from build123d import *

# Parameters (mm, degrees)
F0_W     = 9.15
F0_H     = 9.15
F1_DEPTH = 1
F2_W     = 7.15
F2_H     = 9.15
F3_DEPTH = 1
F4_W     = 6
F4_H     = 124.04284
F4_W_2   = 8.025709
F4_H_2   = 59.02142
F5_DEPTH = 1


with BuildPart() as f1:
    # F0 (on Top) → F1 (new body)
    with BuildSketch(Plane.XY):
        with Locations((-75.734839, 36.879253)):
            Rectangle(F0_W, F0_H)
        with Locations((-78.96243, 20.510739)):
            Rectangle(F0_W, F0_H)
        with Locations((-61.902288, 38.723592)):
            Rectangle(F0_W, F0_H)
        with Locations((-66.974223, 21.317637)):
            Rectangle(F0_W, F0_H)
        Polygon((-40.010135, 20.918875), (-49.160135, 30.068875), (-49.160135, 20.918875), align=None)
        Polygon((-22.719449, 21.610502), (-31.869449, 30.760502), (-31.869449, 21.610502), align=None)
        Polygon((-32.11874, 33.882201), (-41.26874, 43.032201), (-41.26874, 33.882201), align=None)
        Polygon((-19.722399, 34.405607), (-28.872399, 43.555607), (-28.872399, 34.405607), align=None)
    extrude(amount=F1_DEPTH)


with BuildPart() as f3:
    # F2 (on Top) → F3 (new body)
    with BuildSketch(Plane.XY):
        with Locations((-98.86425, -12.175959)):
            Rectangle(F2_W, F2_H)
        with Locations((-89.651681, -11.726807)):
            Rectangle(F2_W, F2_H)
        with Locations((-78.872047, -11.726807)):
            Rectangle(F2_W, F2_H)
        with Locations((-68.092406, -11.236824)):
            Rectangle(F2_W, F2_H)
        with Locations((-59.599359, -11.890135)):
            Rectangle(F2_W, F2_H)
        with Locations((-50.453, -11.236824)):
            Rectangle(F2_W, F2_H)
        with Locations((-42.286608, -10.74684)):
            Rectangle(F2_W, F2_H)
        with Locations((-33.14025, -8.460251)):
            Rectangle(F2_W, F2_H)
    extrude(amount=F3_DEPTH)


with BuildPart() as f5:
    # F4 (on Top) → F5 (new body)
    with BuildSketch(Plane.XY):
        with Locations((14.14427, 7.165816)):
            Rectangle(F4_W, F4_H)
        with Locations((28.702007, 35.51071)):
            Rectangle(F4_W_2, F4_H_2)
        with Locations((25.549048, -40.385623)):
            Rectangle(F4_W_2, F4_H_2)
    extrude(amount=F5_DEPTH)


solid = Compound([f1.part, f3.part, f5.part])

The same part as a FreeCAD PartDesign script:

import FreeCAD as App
import Part
import Sketcher
from FreeCAD import Vector

doc = App.newDocument("Part")
body = doc.addObject("PartDesign::Body", "Body")
body.AllowCompound = True

sketch1 = doc.addObject("Sketcher::SketchObject", "Sketch")
body.addObject(sketch1)
sketch1.AttachmentSupport = (doc.XY_Plane, [""])
sketch1.MapMode = "FlatFace"
sketch1.addGeometry(Part.LineSegment(Vector(-80, 41, 0), Vector(-80, 32, 0)), False)
sketch1.addGeometry(Part.LineSegment(Vector(-80, 32, 0), Vector(-71, 32, 0)), False)
sketch1.addGeometry(Part.LineSegment(Vector(-71, 32, 0), Vector(-71, 41, 0)), False)
sketch1.addGeometry(Part.LineSegment(Vector(-71, 41, 0), Vector(-80, 41, 0)), False)
sketch1.addGeometry(Part.LineSegment(Vector(-84, 25, 0), Vector(-84, 16, 0)), False)
sketch1.addGeometry(Part.LineSegment(Vector(-84, 16, 0), Vector(-74, 16, 0)), False)
sketch1.addGeometry(Part.LineSegment(Vector(-74, 16, 0), Vector(-74, 25, 0)), False)
sketch1.addGeometry(Part.LineSegment(Vector(-74, 25, 0), Vector(-84, 25, 0)), False)
sketch1.addGeometry(Part.LineSegment(Vector(-66, 43, 0), Vector(-66, 34, 0)), False)
sketch1.addGeometry(Part.LineSegment(Vector(-66, 34, 0), Vector(-57, 34, 0)), False)
sketch1.addGeometry(Part.LineSegment(Vector(-57, 34, 0), Vector(-57, 43, 0)), False)
sketch1.addGeometry(Part.LineSegment(Vector(-57, 43, 0), Vector(-66, 43, 0)), False)
sketch1.addGeometry(Part.LineSegment(Vector(-72, 26, 0), Vector(-72, 17, 0)), False)
sketch1.addGeometry(Part.LineSegment(Vector(-72, 17, 0), Vector(-62, 17, 0)), False)
sketch1.addGeometry(Part.LineSegment(Vector(-62, 17, 0), Vector(-62, 26, 0)), False)
sketch1.addGeometry(Part.LineSegment(Vector(-62, 26, 0), Vector(-72, 26, 0)), False)
sketch1.addGeometry(Part.LineSegment(Vector(-40, 21, 0), Vector(-49, 30, 0)), False)
sketch1.addGeometry(Part.LineSegment(Vector(-49, 30, 0), Vector(-49, 21, 0)), False)
sketch1.addGeometry(Part.LineSegment(Vector(-49, 21, 0), Vector(-40, 21, 0)), False)
sketch1.addGeometry(Part.LineSegment(Vector(-23, 22, 0), Vector(-32, 31, 0)), False)
sketch1.addGeometry(Part.LineSegment(Vector(-32, 31, 0), Vector(-32, 22, 0)), False)
sketch1.addGeometry(Part.LineSegment(Vector(-32, 22, 0), Vector(-23, 22, 0)), False)
sketch1.addGeometry(Part.LineSegment(Vector(-32, 34, 0), Vector(-41, 43, 0)), False)
sketch1.addGeometry(Part.LineSegment(Vector(-41, 43, 0), Vector(-41, 34, 0)), False)
sketch1.addGeometry(Part.LineSegment(Vector(-41, 34, 0), Vector(-32, 34, 0)), False)
sketch1.addGeometry(Part.LineSegment(Vector(-20, 34, 0), Vector(-29, 44, 0)), False)
sketch1.addGeometry(Part.LineSegment(Vector(-29, 44, 0), Vector(-29, 34, 0)), False)
sketch1.addGeometry(Part.LineSegment(Vector(-29, 34, 0), Vector(-20, 34, 0)), False)
sketch1.addConstraint(Sketcher.Constraint("Coincident", 0, 2, 1, 1))
sketch1.addConstraint(Sketcher.Constraint("Coincident", 1, 2, 2, 1))
sketch1.addConstraint(Sketcher.Constraint("Coincident", 2, 2, 3, 1))
sketch1.addConstraint(Sketcher.Constraint("Coincident", 3, 2, 0, 1))
sketch1.addConstraint(Sketcher.Constraint("Coincident", 4, 2, 5, 1))
sketch1.addConstraint(Sketcher.Constraint("Coincident", 5, 2, 6, 1))
sketch1.addConstraint(Sketcher.Constraint("Coincident", 6, 2, 7, 1))
sketch1.addConstraint(Sketcher.Constraint("Coincident", 7, 2, 4, 1))
sketch1.addConstraint(Sketcher.Constraint("Coincident", 8, 2, 9, 1))
sketch1.addConstraint(Sketcher.Constraint("Coincident", 9, 2, 10, 1))
sketch1.addConstraint(Sketcher.Constraint("Coincident", 10, 2, 11, 1))
sketch1.addConstraint(Sketcher.Constraint("Coincident", 11, 2, 8, 1))
sketch1.addConstraint(Sketcher.Constraint("Coincident", 12, 2, 13, 1))
sketch1.addConstraint(Sketcher.Constraint("Coincident", 13, 2, 14, 1))
sketch1.addConstraint(Sketcher.Constraint("Coincident", 14, 2, 15, 1))
sketch1.addConstraint(Sketcher.Constraint("Coincident", 15, 2, 12, 1))
sketch1.addConstraint(Sketcher.Constraint("Coincident", 16, 2, 17, 1))
sketch1.addConstraint(Sketcher.Constraint("Coincident", 17, 2, 18, 1))
sketch1.addConstraint(Sketcher.Constraint("Coincident", 18, 2, 16, 1))
sketch1.addConstraint(Sketcher.Constraint("Coincident", 19, 2, 20, 1))
sketch1.addConstraint(Sketcher.Constraint("Coincident", 20, 2, 21, 1))
sketch1.addConstraint(Sketcher.Constraint("Coincident", 21, 2, 19, 1))
sketch1.addConstraint(Sketcher.Constraint("Coincident", 22, 2, 23, 1))
sketch1.addConstraint(Sketcher.Constraint("Coincident", 23, 2, 24, 1))
sketch1.addConstraint(Sketcher.Constraint("Coincident", 24, 2, 22, 1))
sketch1.addConstraint(Sketcher.Constraint("Coincident", 25, 2, 26, 1))
sketch1.addConstraint(Sketcher.Constraint("Coincident", 26, 2, 27, 1))
sketch1.addConstraint(Sketcher.Constraint("Coincident", 27, 2, 25, 1))
sketch1.addConstraint(Sketcher.Constraint("Vertical", 0))
sketch1.addConstraint(Sketcher.Constraint("Horizontal", 1))
sketch1.addConstraint(Sketcher.Constraint("Vertical", 2))
sketch1.addConstraint(Sketcher.Constraint("Horizontal", 3))
sketch1.addConstraint(Sketcher.Constraint("Vertical", 4))
sketch1.addConstraint(Sketcher.Constraint("Horizontal", 5))
sketch1.addConstraint(Sketcher.Constraint("Vertical", 6))
sketch1.addConstraint(Sketcher.Constraint("Horizontal", 7))
sketch1.addConstraint(Sketcher.Constraint("Vertical", 8))
sketch1.addConstraint(Sketcher.Constraint("Horizontal", 9))
sketch1.addConstraint(Sketcher.Constraint("Vertical", 10))
sketch1.addConstraint(Sketcher.Constraint("Horizontal", 11))
sketch1.addConstraint(Sketcher.Constraint("Vertical", 12))
sketch1.addConstraint(Sketcher.Constraint("Horizontal", 13))
sketch1.addConstraint(Sketcher.Constraint("Vertical", 14))
sketch1.addConstraint(Sketcher.Constraint("Horizontal", 15))
sketch1.addConstraint(Sketcher.Constraint("Vertical", 17))
sketch1.addConstraint(Sketcher.Constraint("Horizontal", 18))
sketch1.addConstraint(Sketcher.Constraint("Vertical", 20))
sketch1.addConstraint(Sketcher.Constraint("Horizontal", 21))
sketch1.addConstraint(Sketcher.Constraint("Vertical", 23))
sketch1.addConstraint(Sketcher.Constraint("Horizontal", 24))
sketch1.addConstraint(Sketcher.Constraint("Vertical", 26))
sketch1.addConstraint(Sketcher.Constraint("Horizontal", 27))
sketch1.addConstraint(Sketcher.Constraint("Parallel", 16, 19))
sketch1.addConstraint(Sketcher.Constraint("Parallel", 19, 22))
sketch1.addConstraint(Sketcher.Constraint("Parallel", 22, 25))
sketch1.addConstraint(Sketcher.Constraint("Equal", 3, 5))
sketch1.addConstraint(Sketcher.Constraint("Equal", 7, 9))
sketch1.addConstraint(Sketcher.Constraint("Equal", 11, 13))
sketch1.addConstraint(Sketcher.Constraint("Equal", 15, 18))
sketch1.addConstraint(Sketcher.Constraint("Equal", 18, 21))
sketch1.addConstraint(Sketcher.Constraint("Equal", 21, 24))
sketch1.addConstraint(Sketcher.Constraint("Equal", 24, 27))
sketch1.addConstraint(Sketcher.Constraint("Equal", 27, 0))
sketch1.addConstraint(Sketcher.Constraint("Equal", 2, 4))
sketch1.addConstraint(Sketcher.Constraint("Equal", 6, 8))
sketch1.addConstraint(Sketcher.Constraint("Equal", 10, 12))
sketch1.addConstraint(Sketcher.Constraint("Equal", 14, 17))
sketch1.addConstraint(Sketcher.Constraint("DistanceX", 1, 1, 1, 2, 9.15))
sketch1.addConstraint(Sketcher.Constraint("DistanceY", -1, 1, 19, 2, 30.760502))
sketch1.addConstraint(Sketcher.Constraint("DistanceY", -1, 1, 22, 2, 43.032201))
sketch1.addConstraint(Sketcher.Constraint("DistanceX", 25, 2, -1, 1, 28.872399))
sketch1.addConstraint(Sketcher.Constraint("DistanceY", 6, 2, 14, 2, 0.806898))
sketch1.addConstraint(Sketcher.Constraint("DistanceX", 0, 2, -1, 1, 80.309839))
sketch1.addConstraint(Sketcher.Constraint("DistanceX", 4, 2, -1, 1, 83.53743))
sketch1.addConstraint(Sketcher.Constraint("DistanceY", -1, 1, 4, 2, 15.935739))
sketch1.addConstraint(Sketcher.Constraint("DistanceX", 8, 2, -1, 1, 66.477288))
sketch1.addConstraint(Sketcher.Constraint("DistanceX", 19, 2, -1, 1, 31.869449))
sketch1.addConstraint(Sketcher.Constraint("DistanceX", 22, 2, -1, 1, 41.26874))
sketch1.addConstraint(Sketcher.Constraint("DistanceY", 1, 2, 8, 2, 1.844339))
sketch1.addConstraint(Sketcher.Constraint("DistanceX", 14, 2, 16, 2, 13.239088))
sketch1.addConstraint(Sketcher.Constraint("DistanceY", 13, 2, 17, 2, 4.176238))
sketch1.addConstraint(Sketcher.Constraint("DistanceY", 19, 2, 9, 2, 3.38809))
sketch1.addConstraint(Sketcher.Constraint("DistanceX", 12, 2, -1, 1, 71.549223))
sketch1.addConstraint(Sketcher.Constraint("DistanceY", -1, 1, 25, 2, 43.555607))
pad1 = doc.addObject("PartDesign::Pad", "Pad")
body.addObject(pad1)
pad1.Profile = sketch1
pad1.Length = 1
body2 = doc.addObject("PartDesign::Body", "Body001")
body2.AllowCompound = True

sketch2 = doc.addObject("Sketcher::SketchObject", "Sketch001")
body2.addObject(sketch2)
sketch2.AttachmentSupport = (doc.getObject("XY_Plane001"), [""])
sketch2.MapMode = "FlatFace"
sketch2.addGeometry(Part.LineSegment(Vector(-102, -8, 0), Vector(-102, -17, 0)), False)
sketch2.addGeometry(Part.LineSegment(Vector(-102, -17, 0), Vector(-95, -17, 0)), False)
sketch2.addGeometry(Part.LineSegment(Vector(-95, -17, 0), Vector(-95, -8, 0)), False)
sketch2.addGeometry(Part.LineSegment(Vector(-95, -8, 0), Vector(-102, -8, 0)), False)
sketch2.addGeometry(Part.LineSegment(Vector(-93, -7, 0), Vector(-93, -16, 0)), False)
sketch2.addGeometry(Part.LineSegment(Vector(-93, -16, 0), Vector(-86, -16, 0)), False)
sketch2.addGeometry(Part.LineSegment(Vector(-86, -16, 0), Vector(-86, -7, 0)), False)
sketch2.addGeometry(Part.LineSegment(Vector(-86, -7, 0), Vector(-93, -7, 0)), False)
sketch2.addGeometry(Part.LineSegment(Vector(-82, -7, 0), Vector(-82, -16, 0)), False)
sketch2.addGeometry(Part.LineSegment(Vector(-82, -16, 0), Vector(-75, -16, 0)), False)
sketch2.addGeometry(Part.LineSegment(Vector(-75, -16, 0), Vector(-75, -7, 0)), False)
sketch2.addGeometry(Part.LineSegment(Vector(-75, -7, 0), Vector(-82, -7, 0)), False)
sketch2.addGeometry(Part.LineSegment(Vector(-72, -7, 0), Vector(-72, -16, 0)), False)
sketch2.addGeometry(Part.LineSegment(Vector(-72, -16, 0), Vector(-65, -16, 0)), False)
sketch2.addGeometry(Part.LineSegment(Vector(-65, -16, 0), Vector(-65, -7, 0)), False)
sketch2.addGeometry(Part.LineSegment(Vector(-65, -7, 0), Vector(-72, -7, 0)), False)
sketch2.addGeometry(Part.LineSegment(Vector(-63, -7, 0), Vector(-63, -16, 0)), False)
sketch2.addGeometry(Part.LineSegment(Vector(-63, -16, 0), Vector(-56, -16, 0)), False)
sketch2.addGeometry(Part.LineSegment(Vector(-56, -16, 0), Vector(-56, -7, 0)), False)
sketch2.addGeometry(Part.LineSegment(Vector(-56, -7, 0), Vector(-63, -7, 0)), False)
sketch2.addGeometry(Part.LineSegment(Vector(-54, -7, 0), Vector(-54, -16, 0)), False)
sketch2.addGeometry(Part.LineSegment(Vector(-54, -16, 0), Vector(-47, -16, 0)), False)
sketch2.addGeometry(Part.LineSegment(Vector(-47, -16, 0), Vector(-47, -7, 0)), False)
sketch2.addGeometry(Part.LineSegment(Vector(-47, -7, 0), Vector(-54, -7, 0)), False)
sketch2.addGeometry(Part.LineSegment(Vector(-46, -6, 0), Vector(-46, -15, 0)), False)
sketch2.addGeometry(Part.LineSegment(Vector(-46, -15, 0), Vector(-39, -15, 0)), False)
sketch2.addGeometry(Part.LineSegment(Vector(-39, -15, 0), Vector(-39, -6, 0)), False)
sketch2.addGeometry(Part.LineSegment(Vector(-39, -6, 0), Vector(-46, -6, 0)), False)
sketch2.addGeometry(Part.LineSegment(Vector(-37, -4, 0), Vector(-37, -13, 0)), False)
sketch2.addGeometry(Part.LineSegment(Vector(-37, -13, 0), Vector(-30, -13, 0)), False)
sketch2.addGeometry(Part.LineSegment(Vector(-30, -13, 0), Vector(-30, -4, 0)), False)
sketch2.addGeometry(Part.LineSegment(Vector(-30, -4, 0), Vector(-37, -4, 0)), False)
sketch2.addConstraint(Sketcher.Constraint("Coincident", 0, 2, 1, 1))
sketch2.addConstraint(Sketcher.Constraint("Coincident", 1, 2, 2, 1))
sketch2.addConstraint(Sketcher.Constraint("Coincident", 2, 2, 3, 1))
sketch2.addConstraint(Sketcher.Constraint("Coincident", 3, 2, 0, 1))
sketch2.addConstraint(Sketcher.Constraint("Coincident", 4, 2, 5, 1))
sketch2.addConstraint(Sketcher.Constraint("Coincident", 5, 2, 6, 1))
sketch2.addConstraint(Sketcher.Constraint("Coincident", 6, 2, 7, 1))
sketch2.addConstraint(Sketcher.Constraint("Coincident", 7, 2, 4, 1))
sketch2.addConstraint(Sketcher.Constraint("Coincident", 8, 2, 9, 1))
sketch2.addConstraint(Sketcher.Constraint("Coincident", 9, 2, 10, 1))
sketch2.addConstraint(Sketcher.Constraint("Coincident", 10, 2, 11, 1))
sketch2.addConstraint(Sketcher.Constraint("Coincident", 11, 2, 8, 1))
sketch2.addConstraint(Sketcher.Constraint("Coincident", 12, 2, 13, 1))
sketch2.addConstraint(Sketcher.Constraint("Coincident", 13, 2, 14, 1))
sketch2.addConstraint(Sketcher.Constraint("Coincident", 14, 2, 15, 1))
sketch2.addConstraint(Sketcher.Constraint("Coincident", 15, 2, 12, 1))
sketch2.addConstraint(Sketcher.Constraint("Coincident", 16, 2, 17, 1))
sketch2.addConstraint(Sketcher.Constraint("Coincident", 17, 2, 18, 1))
sketch2.addConstraint(Sketcher.Constraint("Coincident", 18, 2, 19, 1))
sketch2.addConstraint(Sketcher.Constraint("Coincident", 19, 2, 16, 1))
sketch2.addConstraint(Sketcher.Constraint("Coincident", 20, 2, 21, 1))
sketch2.addConstraint(Sketcher.Constraint("Coincident", 21, 2, 22, 1))
sketch2.addConstraint(Sketcher.Constraint("Coincident", 22, 2, 23, 1))
sketch2.addConstraint(Sketcher.Constraint("Coincident", 23, 2, 20, 1))
sketch2.addConstraint(Sketcher.Constraint("Coincident", 24, 2, 25, 1))
sketch2.addConstraint(Sketcher.Constraint("Coincident", 25, 2, 26, 1))
sketch2.addConstraint(Sketcher.Constraint("Coincident", 26, 2, 27, 1))
sketch2.addConstraint(Sketcher.Constraint("Coincident", 27, 2, 24, 1))
sketch2.addConstraint(Sketcher.Constraint("Coincident", 28, 2, 29, 1))
sketch2.addConstraint(Sketcher.Constraint("Coincident", 29, 2, 30, 1))
sketch2.addConstraint(Sketcher.Constraint("Coincident", 30, 2, 31, 1))
sketch2.addConstraint(Sketcher.Constraint("Coincident", 31, 2, 28, 1))
sketch2.addConstraint(Sketcher.Constraint("Vertical", 0))
sketch2.addConstraint(Sketcher.Constraint("Horizontal", 1))
sketch2.addConstraint(Sketcher.Constraint("Vertical", 2))
sketch2.addConstraint(Sketcher.Constraint("Horizontal", 3))
sketch2.addConstraint(Sketcher.Constraint("Vertical", 4))
sketch2.addConstraint(Sketcher.Constraint("Horizontal", 5))
sketch2.addConstraint(Sketcher.Constraint("Vertical", 6))
sketch2.addConstraint(Sketcher.Constraint("Horizontal", 7))
sketch2.addConstraint(Sketcher.Constraint("Vertical", 8))
sketch2.addConstraint(Sketcher.Constraint("Horizontal", 9))
sketch2.addConstraint(Sketcher.Constraint("Vertical", 10))
sketch2.addConstraint(Sketcher.Constraint("Horizontal", 11))
sketch2.addConstraint(Sketcher.Constraint("Vertical", 12))
sketch2.addConstraint(Sketcher.Constraint("Horizontal", 13))
sketch2.addConstraint(Sketcher.Constraint("Vertical", 14))
sketch2.addConstraint(Sketcher.Constraint("Horizontal", 15))
sketch2.addConstraint(Sketcher.Constraint("Vertical", 16))
sketch2.addConstraint(Sketcher.Constraint("Horizontal", 17))
sketch2.addConstraint(Sketcher.Constraint("Vertical", 18))
sketch2.addConstraint(Sketcher.Constraint("Horizontal", 19))
sketch2.addConstraint(Sketcher.Constraint("Vertical", 20))
sketch2.addConstraint(Sketcher.Constraint("Horizontal", 21))
sketch2.addConstraint(Sketcher.Constraint("Vertical", 22))
sketch2.addConstraint(Sketcher.Constraint("Horizontal", 23))
sketch2.addConstraint(Sketcher.Constraint("Vertical", 24))
sketch2.addConstraint(Sketcher.Constraint("Horizontal", 25))
sketch2.addConstraint(Sketcher.Constraint("Vertical", 26))
sketch2.addConstraint(Sketcher.Constraint("Horizontal", 27))
sketch2.addConstraint(Sketcher.Constraint("Vertical", 28))
sketch2.addConstraint(Sketcher.Constraint("Horizontal", 29))
sketch2.addConstraint(Sketcher.Constraint("Vertical", 30))
sketch2.addConstraint(Sketcher.Constraint("Horizontal", 31))
sketch2.addConstraint(Sketcher.Constraint("Horizontal", 5, 2, 8, 2))
sketch2.addConstraint(Sketcher.Constraint("Horizontal", 7, 2, 10, 2))
sketch2.addConstraint(Sketcher.Constraint("Horizontal", 13, 2, 20, 2))
sketch2.addConstraint(Sketcher.Constraint("Horizontal", 15, 2, 22, 2))
sketch2.addConstraint(Sketcher.Constraint("Equal", 3, 5))
sketch2.addConstraint(Sketcher.Constraint("Equal", 7, 9))
sketch2.addConstraint(Sketcher.Constraint("Equal", 11, 13))
sketch2.addConstraint(Sketcher.Constraint("Equal", 15, 17))
sketch2.addConstraint(Sketcher.Constraint("Equal", 19, 21))
sketch2.addConstraint(Sketcher.Constraint("Equal", 23, 25))
sketch2.addConstraint(Sketcher.Constraint("Equal", 27, 29))
sketch2.addConstraint(Sketcher.Constraint("Equal", 2, 4))
sketch2.addConstraint(Sketcher.Constraint("Equal", 10, 12))
sketch2.addConstraint(Sketcher.Constraint("Equal", 14, 16))
sketch2.addConstraint(Sketcher.Constraint("Equal", 22, 24))
sketch2.addConstraint(Sketcher.Constraint("Equal", 26, 28))
sketch2.addConstraint(Sketcher.Constraint("DistanceX", 1, 1, 1, 2, 7.15))
sketch2.addConstraint(Sketcher.Constraint("DistanceY", 0, 2, 0, 1, 9.15))
sketch2.addConstraint(Sketcher.Constraint("DistanceX", 20, 2, -1, 1, 54.028))
sketch2.addConstraint(Sketcher.Constraint("DistanceX", 0, 2, -1, 1, 102.43925))
sketch2.addConstraint(Sketcher.Constraint("DistanceY", 0, 2, -1, 1, 16.750959))
sketch2.addConstraint(Sketcher.Constraint("DistanceX", 4, 2, -1, 1, 93.226681))
sketch2.addConstraint(Sketcher.Constraint("DistanceX", 16, 2, -1, 1, 63.174359))
sketch2.addConstraint(Sketcher.Constraint("DistanceY", 24, 2, -1, 1, 15.32184))
sketch2.addConstraint(Sketcher.Constraint("DistanceX", 28, 2, -1, 1, 36.71525))
sketch2.addConstraint(Sketcher.Constraint("DistanceY", 28, 2, -1, 1, 13.035251))
sketch2.addConstraint(Sketcher.Constraint("DistanceY", 2, 2, 6, 2, 0.449152))
sketch2.addConstraint(Sketcher.Constraint("DistanceX", 9, 2, 12, 2, 3.629641))
sketch2.addConstraint(Sketcher.Constraint("DistanceY", 16, 2, 13, 2, 0.653311))
sketch2.addConstraint(Sketcher.Constraint("DistanceX", 9, 2, 16, 2, 12.122688))
sketch2.addConstraint(Sketcher.Constraint("DistanceX", 17, 2, 24, 2, 10.162751))
sketch2.addConstraint(Sketcher.Constraint("DistanceY", 12, 2, -1, 1, 15.811824))
pad2 = doc.addObject("PartDesign::Pad", "Pad001")
body2.addObject(pad2)
pad2.Profile = sketch2
pad2.Length = 1
body3 = doc.addObject("PartDesign::Body", "Body002")
body3.AllowCompound = True

sketch3 = doc.addObject("Sketcher::SketchObject", "Sketch002")
body3.addObject(sketch3)
sketch3.AttachmentSupport = (doc.getObject("XY_Plane002"), [""])
sketch3.MapMode = "FlatFace"
sketch3.addGeometry(Part.LineSegment(Vector(11, 69, 0), Vector(11, -55, 0)), False)
sketch3.addGeometry(Part.LineSegment(Vector(11, -55, 0), Vector(17, -55, 0)), False)
sketch3.addGeometry(Part.LineSegment(Vector(17, -55, 0), Vector(17, 69, 0)), False)
sketch3.addGeometry(Part.LineSegment(Vector(17, 69, 0), Vector(11, 69, 0)), False)
sketch3.addGeometry(Part.LineSegment(Vector(25, 65, 0), Vector(25, 6, 0)), False)
sketch3.addGeometry(Part.LineSegment(Vector(25, 6, 0), Vector(33, 6, 0)), False)
sketch3.addGeometry(Part.LineSegment(Vector(33, 6, 0), Vector(33, 65, 0)), False)
sketch3.addGeometry(Part.LineSegment(Vector(33, 65, 0), Vector(25, 65, 0)), False)
sketch3.addGeometry(Part.LineSegment(Vector(22, -11, 0), Vector(22, -70, 0)), False)
sketch3.addGeometry(Part.LineSegment(Vector(22, -70, 0), Vector(30, -70, 0)), False)
sketch3.addGeometry(Part.LineSegment(Vector(30, -70, 0), Vector(30, -11, 0)), False)
sketch3.addGeometry(Part.LineSegment(Vector(30, -11, 0), Vector(22, -11, 0)), False)
sketch3.addConstraint(Sketcher.Constraint("Coincident", 0, 2, 1, 1))
sketch3.addConstraint(Sketcher.Constraint("Coincident", 1, 2, 2, 1))
sketch3.addConstraint(Sketcher.Constraint("Coincident", 2, 2, 3, 1))
sketch3.addConstraint(Sketcher.Constraint("Coincident", 3, 2, 0, 1))
sketch3.addConstraint(Sketcher.Constraint("Coincident", 4, 2, 5, 1))
sketch3.addConstraint(Sketcher.Constraint("Coincident", 5, 2, 6, 1))
sketch3.addConstraint(Sketcher.Constraint("Coincident", 6, 2, 7, 1))
sketch3.addConstraint(Sketcher.Constraint("Coincident", 7, 2, 4, 1))
sketch3.addConstraint(Sketcher.Constraint("Coincident", 8, 2, 9, 1))
sketch3.addConstraint(Sketcher.Constraint("Coincident", 9, 2, 10, 1))
sketch3.addConstraint(Sketcher.Constraint("Coincident", 10, 2, 11, 1))
sketch3.addConstraint(Sketcher.Constraint("Coincident", 11, 2, 8, 1))
sketch3.addConstraint(Sketcher.Constraint("Vertical", 0))
sketch3.addConstraint(Sketcher.Constraint("Horizontal", 1))
sketch3.addConstraint(Sketcher.Constraint("Vertical", 2))
sketch3.addConstraint(Sketcher.Constraint("Horizontal", 3))
sketch3.addConstraint(Sketcher.Constraint("Vertical", 4))
sketch3.addConstraint(Sketcher.Constraint("Horizontal", 5))
sketch3.addConstraint(Sketcher.Constraint("Vertical", 6))
sketch3.addConstraint(Sketcher.Constraint("Horizontal", 7))
sketch3.addConstraint(Sketcher.Constraint("Vertical", 8))
sketch3.addConstraint(Sketcher.Constraint("Horizontal", 9))
sketch3.addConstraint(Sketcher.Constraint("Vertical", 10))
sketch3.addConstraint(Sketcher.Constraint("Horizontal", 11))
sketch3.addConstraint(Sketcher.Constraint("Equal", 7, 9))
sketch3.addConstraint(Sketcher.Constraint("Equal", 6, 8))
sketch3.addConstraint(Sketcher.Constraint("DistanceX", 1, 1, 1, 2, 6.0))
sketch3.addConstraint(Sketcher.Constraint("DistanceY", -1, 1, 4, 2, 6.0))
sketch3.addConstraint(Sketcher.Constraint("DistanceX", 5, 1, 5, 2, 8.025709))
sketch3.addConstraint(Sketcher.Constraint("DistanceY", 0, 2, 0, 1, 124.04284))
sketch3.addConstraint(Sketcher.Constraint("DistanceY", 4, 2, 4, 1, 59.02142))
sketch3.addConstraint(Sketcher.Constraint("DistanceX", -1, 1, 0, 2, 11.14427))
sketch3.addConstraint(Sketcher.Constraint("DistanceX", -1, 1, 5, 2, 32.714861))
sketch3.addConstraint(Sketcher.Constraint("DistanceY", 8, 2, 1, 2, 15.040729))
sketch3.addConstraint(Sketcher.Constraint("DistanceX", 8, 2, 4, 2, 3.152959))
sketch3.addConstraint(Sketcher.Constraint("DistanceY", 0, 2, -1, 1, 54.855604))
pad3 = doc.addObject("PartDesign::Pad", "Pad002")
body3.addObject(pad3)
pad3.Profile = sketch3
pad3.Length = 1

doc.recompute()
